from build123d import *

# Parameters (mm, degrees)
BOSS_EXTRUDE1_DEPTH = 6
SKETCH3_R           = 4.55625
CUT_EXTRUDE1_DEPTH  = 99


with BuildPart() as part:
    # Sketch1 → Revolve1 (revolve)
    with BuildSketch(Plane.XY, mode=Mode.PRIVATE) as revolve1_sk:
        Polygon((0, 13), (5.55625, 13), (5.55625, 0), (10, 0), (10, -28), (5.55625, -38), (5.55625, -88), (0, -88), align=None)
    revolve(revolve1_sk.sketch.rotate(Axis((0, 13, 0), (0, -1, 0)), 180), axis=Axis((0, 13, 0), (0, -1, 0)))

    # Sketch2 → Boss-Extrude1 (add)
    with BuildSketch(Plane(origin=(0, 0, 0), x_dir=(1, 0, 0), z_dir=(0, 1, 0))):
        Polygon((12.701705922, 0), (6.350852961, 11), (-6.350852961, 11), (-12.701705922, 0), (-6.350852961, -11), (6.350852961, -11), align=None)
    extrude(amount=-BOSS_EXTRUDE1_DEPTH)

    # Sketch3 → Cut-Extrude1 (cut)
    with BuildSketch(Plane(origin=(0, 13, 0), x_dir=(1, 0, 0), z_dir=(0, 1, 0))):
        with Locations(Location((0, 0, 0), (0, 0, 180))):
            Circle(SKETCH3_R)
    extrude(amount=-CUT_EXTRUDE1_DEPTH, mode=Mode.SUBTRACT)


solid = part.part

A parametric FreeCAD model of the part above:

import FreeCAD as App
import Part
import Sketcher
Q = App.Units.Quantity

doc = App.newDocument("Part")
body = doc.addObject("PartDesign::Body", "Body")

# Sketch on XY plane
sketch1 = doc.addObject("Sketcher::SketchObject", "Sketch")
body.addObject(sketch1)
sketch1.AttachmentSupport = (doc.XY_Plane, [""])
sketch1.MapMode = "FlatFace"
sketch1.addGeometry([
    Part.LineSegment(App.Vector(5.55625, 13, 0), App.Vector(0, 13, 0)),  # 0
    Part.LineSegment(App.Vector(0, 13, 0), App.Vector(0, -88, 0)),  # 1
    Part.LineSegment(App.Vector(0, -88, 0), App.Vector(5.55625, -88, 0)),  # 2
    Part.LineSegment(App.Vector(5.55625, -88, 0), App.Vector(5.55625, -38, 0)),  # 3
    Part.LineSegment(App.Vector(5.55625, -38, 0), App.Vector(10, -28, 0)),  # 4
    Part.LineSegment(App.Vector(10, -28, 0), App.Vector(10, 0, 0)),  # 5
    Part.LineSegment(App.Vector(10, 0, 0), App.Vector(5.55625, 0, 0)),  # 6
    Part.LineSegment(App.Vector(5.55625, 0, 0), App.Vector(5.55625, 13, 0)),  # 7
], False)
sketch1.addConstraint([
    Sketcher.Constraint("Coincident", 0, 2, 1, 1),
    Sketcher.Constraint("Coincident", 1, 2, 2, 1),
    Sketcher.Constraint("Coincident", 2, 2, 3, 1),
    Sketcher.Constraint("Coincident", 3, 2, 4, 1),
    Sketcher.Constraint("Coincident", 4, 2, 5, 1),
    Sketcher.Constraint("Coincident", 5, 2, 6, 1),
    Sketcher.Constraint("Coincident", 6, 2, 7, 1),
    Sketcher.Constraint("Coincident", 7, 2, 0, 1),
    Sketcher.Constraint("Horizontal", 0),
    Sketcher.Constraint("Vertical", 1),
    Sketcher.Constraint("Horizontal", 2),
    Sketcher.Constraint("Vertical", 3),
    Sketcher.Constraint("Vertical", 5),
    Sketcher.Constraint("Horizontal", 6),
    Sketcher.Constraint("Vertical", 7),
    Sketcher.Constraint("PointOnObject", 0, 2, -2),
    Sketcher.Constraint("PointOnObject", 5, 2, -1),
    Sketcher.Constraint("Vertical", 3, 2, 6, 2),
    Sketcher.Constraint("DistanceY", 1, 2, 1, 1, 101.0),
    Sketcher.Constraint("DistanceY", 3, 1, 3, 2, 50.0),
    Sketcher.Constraint("DistanceY", 5, 1, 5, 2, 28.0),
    Sketcher.Constraint("DistanceY", 7, 1, 7, 2, 13.0),
    Sketcher.Constraint("DistanceX", -1, 1, 4, 2, 10.0),
    Sketcher.Constraint("DistanceX", 0, 2, 0, 1, 5.55625),
])
revolution = doc.addObject("PartDesign::Revolution", "Revolution")
body.addObject(revolution)
revolution.Profile = sketch1
revolution.ReferenceAxis = (sketch1, ["V_Axis"])
revolution.Angle = 360

# Sketch on XZ plane
sketch2 = doc.addObject("Sketcher::SketchObject", "Sketch001")
body.addObject(sketch2)
sketch2.AttachmentSupport = (doc.XZ_Plane, [""])
sketch2.MapMode = "FlatFace"
sketch2.addGeometry([
    Part.LineSegment(App.Vector(12.701706, 0, 0), App.Vector(6.350853, -11, 0)),  # 0
    Part.LineSegment(App.Vector(6.350853, -11, 0), App.Vector(-6.350853, -11, 0)),  # 1
    Part.LineSegment(App.Vector(-6.350853, -11, 0), App.Vector(-12.701706, 0, 0)),  # 2
    Part.LineSegment(App.Vector(-12.701706, 0, 0), App.Vector(-6.350853, 11, 0)),  # 3
    Part.LineSegment(App.Vector(-6.350853, 11, 0), App.Vector(6.350853, 11, 0)),  # 4
    Part.LineSegment(App.Vector(6.350853, 11, 0), App.Vector(12.701706, 0, 0)),  # 5
], False)
sketch2.addConstraint([
    Sketcher.Constraint("Coincident", 0, 2, 1, 1),
    Sketcher.Constraint("Coincident", 1, 2, 2, 1),
    Sketcher.Constraint("Coincident", 2, 2, 3, 1),
    Sketcher.Constraint("Coincident", 3, 2, 4, 1),
    Sketcher.Constraint("Coincident", 4, 2, 5, 1),
    Sketcher.Constraint("Coincident", 5, 2, 0, 1),
    Sketcher.Constraint("Horizontal", 1),
    Sketcher.Constraint("Horizontal", 4),
    Sketcher.Constraint("Symmetric", 0, 2, 3, 2, -1, 1),
    Sketcher.Constraint("Symmetric", 2, 2, 5, 2, -1, 1),
    Sketcher.Constraint("PointOnObject", 2, 2, -1),
    Sketcher.Constraint("Parallel", 2, 5),
    Sketcher.Constraint("Vertical", 1, 2, 3, 2),
    Sketcher.Constraint("Angle", 0, Q("-120 deg")),
    Sketcher.Constraint("DistanceY", 0, 2, -1, 1, 11.0),
    Sketcher.Constraint("DistanceX", 1, 2, 1, 1, 12.701706),
])
pad1 = doc.addObject("PartDesign::Pad", "Pad")
body.addObject(pad1)
pad1.Profile = sketch2
pad1.Length = 6

# Sketch on XZ plane
sketch3 = doc.addObject("Sketcher::SketchObject", "Sketch002")
body.addObject(sketch3)
sketch3.AttachmentSupport = (doc.XZ_Plane, [""])
sketch3.MapMode = "FlatFace"
sketch3.AttachmentOffset = App.Placement(App.Vector(0, 0, -13), App.Rotation())
sketch3.addGeometry(Part.Circle(App.Vector(0, 0, 0), App.Vector(0, 0, 1), 4.55625), False)
sketch3.addConstraint([
    Sketcher.Constraint("Coincident", 0, 3, -1, 1),
    Sketcher.Constraint("Diameter", 0, 9.1125),
])
pocket1 = doc.addObject("PartDesign::Pocket", "Pocket")
body.addObject(pocket1)
pocket1.Profile = sketch3
pocket1.Length = 99
pocket1.Reversed = True

doc.recompute()
